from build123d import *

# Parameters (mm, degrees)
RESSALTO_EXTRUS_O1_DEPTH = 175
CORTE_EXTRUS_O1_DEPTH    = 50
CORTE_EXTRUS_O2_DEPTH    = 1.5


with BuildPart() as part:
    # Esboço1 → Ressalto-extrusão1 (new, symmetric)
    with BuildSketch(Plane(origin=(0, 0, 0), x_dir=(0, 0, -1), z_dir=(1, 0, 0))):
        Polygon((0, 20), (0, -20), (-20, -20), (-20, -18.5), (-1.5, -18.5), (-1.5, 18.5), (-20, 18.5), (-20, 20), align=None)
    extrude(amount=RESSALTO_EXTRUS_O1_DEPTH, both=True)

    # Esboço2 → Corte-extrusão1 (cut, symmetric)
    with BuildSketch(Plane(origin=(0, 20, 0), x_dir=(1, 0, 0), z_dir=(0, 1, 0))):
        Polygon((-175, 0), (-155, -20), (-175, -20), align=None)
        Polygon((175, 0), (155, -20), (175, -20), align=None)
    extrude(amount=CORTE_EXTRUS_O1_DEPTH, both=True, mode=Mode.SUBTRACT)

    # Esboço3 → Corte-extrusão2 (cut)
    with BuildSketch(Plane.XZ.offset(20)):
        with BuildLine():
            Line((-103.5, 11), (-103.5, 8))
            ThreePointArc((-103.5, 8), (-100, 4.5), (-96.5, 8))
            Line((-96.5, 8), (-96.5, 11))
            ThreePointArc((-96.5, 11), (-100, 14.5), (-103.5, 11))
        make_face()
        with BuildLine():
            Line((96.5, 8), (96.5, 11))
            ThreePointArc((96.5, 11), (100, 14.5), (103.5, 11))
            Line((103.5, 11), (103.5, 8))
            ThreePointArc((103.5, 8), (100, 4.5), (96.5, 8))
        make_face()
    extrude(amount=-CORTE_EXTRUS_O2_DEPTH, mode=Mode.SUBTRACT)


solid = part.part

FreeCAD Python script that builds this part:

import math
import FreeCAD as App
import Part
import Sketcher

V = App.Vector
Q = App.Units.Quantity

doc = App.newDocument("Part")
body = doc.addObject("PartDesign::Body", "Body")

sketch1 = body.newObject("Sketcher::SketchObject", "Sketch")
sketch1.AttachmentSupport = (doc.getObject("YZ_Plane"), [""])
sketch1.MapMode = "FlatFace"
sketch1.addGeometry([
    Part.LineSegment(V(-20, 0, 0), V(20, 0, 0)),
    Part.LineSegment(V(20, 0, 0), V(20, 20, 0)),
    Part.LineSegment(V(20, 20, 0), V(18.5, 20, 0)),
    Part.LineSegment(V(18.5, 20, 0), V(18.5, 1.5, 0)),
    Part.LineSegment(V(18.5, 1.5, 0), V(-18.5, 1.5, 0)),
    Part.LineSegment(V(-18.5, 1.5, 0), V(-18.5, 20, 0)),
    Part.LineSegment(V(-18.5, 20, 0), V(-20, 20, 0)),
    Part.LineSegment(V(-20, 20, 0), V(-20, 0, 0)),
], False)
sketch1.addConstraint([
    Sketcher.Constraint("Coincident", 0, 2, 1, 1),
    Sketcher.Constraint("Coincident", 1, 2, 2, 1),
    Sketcher.Constraint("Coincident", 2, 2, 3, 1),
    Sketcher.Constraint("Coincident", 3, 2, 4, 1),
    Sketcher.Constraint("Coincident", 4, 2, 5, 1),
    Sketcher.Constraint("Coincident", 5, 2, 6, 1),
    Sketcher.Constraint("Coincident", 6, 2, 7, 1),
    Sketcher.Constraint("Coincident", 7, 2, 0, 1),
    Sketcher.Constraint("Horizontal", 0),
    Sketcher.Constraint("Vertical", 1),
    Sketcher.Constraint("Horizontal", 2),
    Sketcher.Constraint("Vertical", 3),
    Sketcher.Constraint("Horizontal", 4),
    Sketcher.Constraint("Vertical", 5),
    Sketcher.Constraint("Horizontal", 6),
    Sketcher.Constraint("Vertical", 7),
    Sketcher.Constraint("Symmetric", 0, 2, 7, 2, -1, 1),
    Sketcher.Constraint("Symmetric", 2, 2, 5, 2, -2),
    Sketcher.Constraint("DistanceX", 0, 1, 0, 2, Q("40 mm")),
    Sketcher.Constraint("DistanceX", 4, 2, 4, 1, Q("37 mm")),
    Sketcher.Constraint("DistanceY", 1, 1, 1, 2, Q("20 mm")),
    Sketcher.Constraint("DistanceY", 3, 2, 3, 1, Q("18.5 mm")),
])
pad1 = body.newObject("PartDesign::Pad", "Pad")
pad1.Profile = sketch1
pad1.Length = 350
pad1.Midplane = True

sketch2 = body.newObject("Sketcher::SketchObject", "Sketch001")
sketch2.AttachmentSupport = (doc.getObject("XZ_Plane"), [""])
sketch2.MapMode = "FlatFace"
sketch2.AttachmentOffset = App.Placement(V(0, 0, -20), App.Rotation())
sketch2.addGeometry([
    Part.LineSegment(V(-155, 20, 0), V(-175, 0, 0)),
    Part.LineSegment(V(-175, 0, 0), V(-175, 20, 0)),
    Part.LineSegment(V(-175, 20, 0), V(-155, 20, 0)),
    Part.LineSegment(V(175, 0, 0), V(155, 20, 0)),
    Part.LineSegment(V(155, 20, 0), V(175, 20, 0)),
    Part.LineSegment(V(175, 20, 0), V(175, 0, 0)),
], False)
sketch2.addConstraint([
    Sketcher.Constraint("Coincident", 0, 2, 1, 1),
    Sketcher.Constraint("Coincident", 1, 2, 2, 1),
    Sketcher.Constraint("Coincident", 2, 2, 0, 1),
    Sketcher.Constraint("Coincident", 3, 2, 4, 1),
    Sketcher.Constraint("Coincident", 4, 2, 5, 1),
    Sketcher.Constraint("Coincident", 5, 2, 3, 1),
    Sketcher.Constraint("Vertical", 1),
    Sketcher.Constraint("Horizontal", 2),
    Sketcher.Constraint("Horizontal", 4),
    Sketcher.Constraint("Vertical", 5),
    Sketcher.Constraint("Symmetric", 0, 2, 5, 2, -1, 1),
    Sketcher.Constraint("Symmetric", 2, 2, 3, 2, -2),
    Sketcher.Constraint("PointOnObject", 0, 2, -1),
    Sketcher.Constraint("Perpendicular", 0, 3),
    Sketcher.Constraint("DistanceX", 2, 1, 2, 2, Q("20 mm")),
    Sketcher.Constraint("DistanceX", 0, 2, -1, 1, Q("175 mm")),
])
pocket1 = body.newObject("PartDesign::Pocket", "Pocket")
pocket1.Profile = sketch2
pocket1.Length = 100
pocket1.Midplane = True

sketch3 = body.newObject("Sketcher::SketchObject", "Sketch002")
sketch3.AttachmentSupport = (doc.getObject("XZ_Plane"), [""])
sketch3.MapMode = "FlatFace"
sketch3.AttachmentOffset = App.Placement(V(0, 0, 20), App.Rotation())
sketch3.addGeometry([
    Part.LineSegment(V(-103.5, 11, 0), V(-103.5, 8, 0)),
    Part.ArcOfCircle(Part.Circle(V(-100, 8, 0), V(0, 0, 1), 3.5), math.radians(180), math.radians(360)),
    Part.LineSegment(V(-96.5, 8, 0), V(-96.5, 11, 0)),
    Part.ArcOfCircle(Part.Circle(V(-100, 11, 0), V(0, 0, 1), 3.5), math.radians(0), math.radians(180)),
    Part.LineSegment(V(96.5, 11, 0), V(96.5, 8, 0)),
    Part.ArcOfCircle(Part.Circle(V(100, 8, 0), V(0, 0, 1), 3.5), math.radians(180), math.radians(360)),
    Part.LineSegment(V(103.5, 8, 0), V(103.5, 11, 0)),
    Part.ArcOfCircle(Part.Circle(V(100, 11, 0), V(0, 0, 1), 3.5), math.radians(0), math.radians(180)),
], False)
sketch3.addConstraint([
    Sketcher.Constraint("Tangent", 0, 2, 1, 1),
    Sketcher.Constraint("Tangent", 1, 2, 2, 1),
    Sketcher.Constraint("Tangent", 2, 2, 3, 1),
    Sketcher.Constraint("Tangent", 3, 2, 0, 1),
    Sketcher.Constraint("Tangent", 4, 2, 5, 1),
    Sketcher.Constraint("Tangent", 5, 2, 6, 1),
    Sketcher.Constraint("Tangent", 6, 2, 7, 1),
    Sketcher.Constraint("Tangent", 7, 2, 4, 1),
    Sketcher.Constraint("Vertical", 0),
    Sketcher.Constraint("Vertical", 2),
    Sketcher.Constraint("Vertical", 4),
    Sketcher.Constraint("Vertical", 6),
    Sketcher.Constraint("Equal", 3, 5),
    Sketcher.Constraint("Symmetric", 1, 3, 5, 3, -2),
    Sketcher.Constraint("Horizontal", 3, 3, 7, 3),
    Sketcher.Constraint("Radius", 1, Q("3.5 mm")),
    Sketcher.Constraint("DistanceY", 0, 2, 0, 1, Q("3 mm")),
    Sketcher.Constraint("DistanceX", 1, 3, -1, 1, Q("100 mm")),
    Sketcher.Constraint("DistanceY", -1, 1, 1, 3, Q("8 mm")),
])
pocket2 = body.newObject("PartDesign::Pocket", "Pocket001")
pocket2.Profile = sketch3
pocket2.Length = 1.5

doc.recompute()
